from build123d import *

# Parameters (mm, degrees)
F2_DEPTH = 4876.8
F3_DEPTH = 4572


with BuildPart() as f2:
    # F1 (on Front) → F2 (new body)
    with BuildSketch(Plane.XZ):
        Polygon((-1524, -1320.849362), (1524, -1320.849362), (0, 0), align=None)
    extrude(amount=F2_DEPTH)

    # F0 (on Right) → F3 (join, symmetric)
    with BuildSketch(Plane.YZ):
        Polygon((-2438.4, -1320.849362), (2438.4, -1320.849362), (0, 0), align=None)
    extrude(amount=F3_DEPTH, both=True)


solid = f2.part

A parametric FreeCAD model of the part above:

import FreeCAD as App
import Part
import Sketcher
from FreeCAD import Vector
Q = App.Units.Quantity

doc = App.newDocument("Part")
params = doc.addObject("Spreadsheet::Sheet", "Params")
for row, (alias, value) in enumerate([
    ("sketch1_width", "120 in"),
    ("pad1_length", "192 in"),
    ("sketch2_width", "192 in"),
    ("pad2_length", "360 in"),
], start=1):
    params.set(f"A{row}", alias)
    params.set(f"B{row}", "=" + value)
    params.setAlias(f"B{row}", alias)

body = doc.addObject("PartDesign::Body", "Body")

# Sketch on XZ plane
sketch1 = body.newObject("Sketcher::SketchObject", "Sketch")
sketch1.AttachmentSupport = (doc.getObject("XZ_Plane"), [""])
sketch1.MapMode = "FlatFace"
sketch1.addGeometry(Part.LineSegment(Vector(-1524, -1321, 0), Vector(1524, -1321, 0)), False)
sketch1.addGeometry(Part.LineSegment(Vector(1524, -1321, 0), Vector(0, 0, 0)), False)
sketch1.addGeometry(Part.LineSegment(Vector(0, 0, 0), Vector(-1524, -1321, 0)), False)
sketch1.addConstraint(Sketcher.Constraint("Coincident", 0, 2, 1, 1))
sketch1.addConstraint(Sketcher.Constraint("Coincident", 1, 2, 2, 1))
sketch1.addConstraint(Sketcher.Constraint("Coincident", 2, 2, 0, 1))
sketch1.addConstraint(Sketcher.Constraint("Horizontal", 0))
sketch1.addConstraint(Sketcher.Constraint("Coincident", 1, 2, -1, 1))
sketch1.addConstraint(Sketcher.Constraint("Equal", 1, 2))
sketch1.addConstraint(Sketcher.Constraint("DistanceX", 0, 1, 0, 2, Q("120 in")))
sketch1.addConstraint(Sketcher.Constraint("DistanceY", 0, 2, -1, 1, Q("1320.849362 mm")))
sketch1.setExpression("Constraints[6]", "Params.sketch1_width")
pad1 = body.newObject("PartDesign::Pad", "Pad")
pad1.Profile = sketch1
pad1.setExpression("Length", "Params.pad1_length")

# Sketch on YZ plane
sketch2 = body.newObject("Sketcher::SketchObject", "Sketch001")
sketch2.AttachmentSupport = (doc.getObject("YZ_Plane"), [""])
sketch2.MapMode = "FlatFace"
sketch2.addGeometry(Part.LineSegment(Vector(-2438, -1321, 0), Vector(2438, -1321, 0)), False)
sketch2.addGeometry(Part.LineSegment(Vector(2438, -1321, 0), Vector(0, 0, 0)), False)
sketch2.addGeometry(Part.LineSegment(Vector(0, 0, 0), Vector(-2438, -1321, 0)), False)
sketch2.addConstraint(Sketcher.Constraint("Coincident", 0, 2, 1, 1))
sketch2.addConstraint(Sketcher.Constraint("Coincident", 1, 2, 2, 1))
sketch2.addConstraint(Sketcher.Constraint("Coincident", 2, 2, 0, 1))
sketch2.addConstraint(Sketcher.Constraint("Horizontal", 0))
sketch2.addConstraint(Sketcher.Constraint("Coincident", 1, 2, -1, 1))
sketch2.addConstraint(Sketcher.Constraint("Equal", 1, 2))
sketch2.addConstraint(Sketcher.Constraint("DistanceX", 0, 1, 0, 2, Q("192 in")))
sketch2.addConstraint(Sketcher.Constraint("DistanceY", 0, 2, -1, 1, Q("1320.849362 mm")))
sketch2.setExpression("Constraints[6]", "Params.sketch2_width")
pad2 = body.newObject("PartDesign::Pad", "Pad001")
pad2.Profile = sketch2
pad2.setExpression("Length", "Params.pad2_length")
pad2.Midplane = True

doc.recompute()
